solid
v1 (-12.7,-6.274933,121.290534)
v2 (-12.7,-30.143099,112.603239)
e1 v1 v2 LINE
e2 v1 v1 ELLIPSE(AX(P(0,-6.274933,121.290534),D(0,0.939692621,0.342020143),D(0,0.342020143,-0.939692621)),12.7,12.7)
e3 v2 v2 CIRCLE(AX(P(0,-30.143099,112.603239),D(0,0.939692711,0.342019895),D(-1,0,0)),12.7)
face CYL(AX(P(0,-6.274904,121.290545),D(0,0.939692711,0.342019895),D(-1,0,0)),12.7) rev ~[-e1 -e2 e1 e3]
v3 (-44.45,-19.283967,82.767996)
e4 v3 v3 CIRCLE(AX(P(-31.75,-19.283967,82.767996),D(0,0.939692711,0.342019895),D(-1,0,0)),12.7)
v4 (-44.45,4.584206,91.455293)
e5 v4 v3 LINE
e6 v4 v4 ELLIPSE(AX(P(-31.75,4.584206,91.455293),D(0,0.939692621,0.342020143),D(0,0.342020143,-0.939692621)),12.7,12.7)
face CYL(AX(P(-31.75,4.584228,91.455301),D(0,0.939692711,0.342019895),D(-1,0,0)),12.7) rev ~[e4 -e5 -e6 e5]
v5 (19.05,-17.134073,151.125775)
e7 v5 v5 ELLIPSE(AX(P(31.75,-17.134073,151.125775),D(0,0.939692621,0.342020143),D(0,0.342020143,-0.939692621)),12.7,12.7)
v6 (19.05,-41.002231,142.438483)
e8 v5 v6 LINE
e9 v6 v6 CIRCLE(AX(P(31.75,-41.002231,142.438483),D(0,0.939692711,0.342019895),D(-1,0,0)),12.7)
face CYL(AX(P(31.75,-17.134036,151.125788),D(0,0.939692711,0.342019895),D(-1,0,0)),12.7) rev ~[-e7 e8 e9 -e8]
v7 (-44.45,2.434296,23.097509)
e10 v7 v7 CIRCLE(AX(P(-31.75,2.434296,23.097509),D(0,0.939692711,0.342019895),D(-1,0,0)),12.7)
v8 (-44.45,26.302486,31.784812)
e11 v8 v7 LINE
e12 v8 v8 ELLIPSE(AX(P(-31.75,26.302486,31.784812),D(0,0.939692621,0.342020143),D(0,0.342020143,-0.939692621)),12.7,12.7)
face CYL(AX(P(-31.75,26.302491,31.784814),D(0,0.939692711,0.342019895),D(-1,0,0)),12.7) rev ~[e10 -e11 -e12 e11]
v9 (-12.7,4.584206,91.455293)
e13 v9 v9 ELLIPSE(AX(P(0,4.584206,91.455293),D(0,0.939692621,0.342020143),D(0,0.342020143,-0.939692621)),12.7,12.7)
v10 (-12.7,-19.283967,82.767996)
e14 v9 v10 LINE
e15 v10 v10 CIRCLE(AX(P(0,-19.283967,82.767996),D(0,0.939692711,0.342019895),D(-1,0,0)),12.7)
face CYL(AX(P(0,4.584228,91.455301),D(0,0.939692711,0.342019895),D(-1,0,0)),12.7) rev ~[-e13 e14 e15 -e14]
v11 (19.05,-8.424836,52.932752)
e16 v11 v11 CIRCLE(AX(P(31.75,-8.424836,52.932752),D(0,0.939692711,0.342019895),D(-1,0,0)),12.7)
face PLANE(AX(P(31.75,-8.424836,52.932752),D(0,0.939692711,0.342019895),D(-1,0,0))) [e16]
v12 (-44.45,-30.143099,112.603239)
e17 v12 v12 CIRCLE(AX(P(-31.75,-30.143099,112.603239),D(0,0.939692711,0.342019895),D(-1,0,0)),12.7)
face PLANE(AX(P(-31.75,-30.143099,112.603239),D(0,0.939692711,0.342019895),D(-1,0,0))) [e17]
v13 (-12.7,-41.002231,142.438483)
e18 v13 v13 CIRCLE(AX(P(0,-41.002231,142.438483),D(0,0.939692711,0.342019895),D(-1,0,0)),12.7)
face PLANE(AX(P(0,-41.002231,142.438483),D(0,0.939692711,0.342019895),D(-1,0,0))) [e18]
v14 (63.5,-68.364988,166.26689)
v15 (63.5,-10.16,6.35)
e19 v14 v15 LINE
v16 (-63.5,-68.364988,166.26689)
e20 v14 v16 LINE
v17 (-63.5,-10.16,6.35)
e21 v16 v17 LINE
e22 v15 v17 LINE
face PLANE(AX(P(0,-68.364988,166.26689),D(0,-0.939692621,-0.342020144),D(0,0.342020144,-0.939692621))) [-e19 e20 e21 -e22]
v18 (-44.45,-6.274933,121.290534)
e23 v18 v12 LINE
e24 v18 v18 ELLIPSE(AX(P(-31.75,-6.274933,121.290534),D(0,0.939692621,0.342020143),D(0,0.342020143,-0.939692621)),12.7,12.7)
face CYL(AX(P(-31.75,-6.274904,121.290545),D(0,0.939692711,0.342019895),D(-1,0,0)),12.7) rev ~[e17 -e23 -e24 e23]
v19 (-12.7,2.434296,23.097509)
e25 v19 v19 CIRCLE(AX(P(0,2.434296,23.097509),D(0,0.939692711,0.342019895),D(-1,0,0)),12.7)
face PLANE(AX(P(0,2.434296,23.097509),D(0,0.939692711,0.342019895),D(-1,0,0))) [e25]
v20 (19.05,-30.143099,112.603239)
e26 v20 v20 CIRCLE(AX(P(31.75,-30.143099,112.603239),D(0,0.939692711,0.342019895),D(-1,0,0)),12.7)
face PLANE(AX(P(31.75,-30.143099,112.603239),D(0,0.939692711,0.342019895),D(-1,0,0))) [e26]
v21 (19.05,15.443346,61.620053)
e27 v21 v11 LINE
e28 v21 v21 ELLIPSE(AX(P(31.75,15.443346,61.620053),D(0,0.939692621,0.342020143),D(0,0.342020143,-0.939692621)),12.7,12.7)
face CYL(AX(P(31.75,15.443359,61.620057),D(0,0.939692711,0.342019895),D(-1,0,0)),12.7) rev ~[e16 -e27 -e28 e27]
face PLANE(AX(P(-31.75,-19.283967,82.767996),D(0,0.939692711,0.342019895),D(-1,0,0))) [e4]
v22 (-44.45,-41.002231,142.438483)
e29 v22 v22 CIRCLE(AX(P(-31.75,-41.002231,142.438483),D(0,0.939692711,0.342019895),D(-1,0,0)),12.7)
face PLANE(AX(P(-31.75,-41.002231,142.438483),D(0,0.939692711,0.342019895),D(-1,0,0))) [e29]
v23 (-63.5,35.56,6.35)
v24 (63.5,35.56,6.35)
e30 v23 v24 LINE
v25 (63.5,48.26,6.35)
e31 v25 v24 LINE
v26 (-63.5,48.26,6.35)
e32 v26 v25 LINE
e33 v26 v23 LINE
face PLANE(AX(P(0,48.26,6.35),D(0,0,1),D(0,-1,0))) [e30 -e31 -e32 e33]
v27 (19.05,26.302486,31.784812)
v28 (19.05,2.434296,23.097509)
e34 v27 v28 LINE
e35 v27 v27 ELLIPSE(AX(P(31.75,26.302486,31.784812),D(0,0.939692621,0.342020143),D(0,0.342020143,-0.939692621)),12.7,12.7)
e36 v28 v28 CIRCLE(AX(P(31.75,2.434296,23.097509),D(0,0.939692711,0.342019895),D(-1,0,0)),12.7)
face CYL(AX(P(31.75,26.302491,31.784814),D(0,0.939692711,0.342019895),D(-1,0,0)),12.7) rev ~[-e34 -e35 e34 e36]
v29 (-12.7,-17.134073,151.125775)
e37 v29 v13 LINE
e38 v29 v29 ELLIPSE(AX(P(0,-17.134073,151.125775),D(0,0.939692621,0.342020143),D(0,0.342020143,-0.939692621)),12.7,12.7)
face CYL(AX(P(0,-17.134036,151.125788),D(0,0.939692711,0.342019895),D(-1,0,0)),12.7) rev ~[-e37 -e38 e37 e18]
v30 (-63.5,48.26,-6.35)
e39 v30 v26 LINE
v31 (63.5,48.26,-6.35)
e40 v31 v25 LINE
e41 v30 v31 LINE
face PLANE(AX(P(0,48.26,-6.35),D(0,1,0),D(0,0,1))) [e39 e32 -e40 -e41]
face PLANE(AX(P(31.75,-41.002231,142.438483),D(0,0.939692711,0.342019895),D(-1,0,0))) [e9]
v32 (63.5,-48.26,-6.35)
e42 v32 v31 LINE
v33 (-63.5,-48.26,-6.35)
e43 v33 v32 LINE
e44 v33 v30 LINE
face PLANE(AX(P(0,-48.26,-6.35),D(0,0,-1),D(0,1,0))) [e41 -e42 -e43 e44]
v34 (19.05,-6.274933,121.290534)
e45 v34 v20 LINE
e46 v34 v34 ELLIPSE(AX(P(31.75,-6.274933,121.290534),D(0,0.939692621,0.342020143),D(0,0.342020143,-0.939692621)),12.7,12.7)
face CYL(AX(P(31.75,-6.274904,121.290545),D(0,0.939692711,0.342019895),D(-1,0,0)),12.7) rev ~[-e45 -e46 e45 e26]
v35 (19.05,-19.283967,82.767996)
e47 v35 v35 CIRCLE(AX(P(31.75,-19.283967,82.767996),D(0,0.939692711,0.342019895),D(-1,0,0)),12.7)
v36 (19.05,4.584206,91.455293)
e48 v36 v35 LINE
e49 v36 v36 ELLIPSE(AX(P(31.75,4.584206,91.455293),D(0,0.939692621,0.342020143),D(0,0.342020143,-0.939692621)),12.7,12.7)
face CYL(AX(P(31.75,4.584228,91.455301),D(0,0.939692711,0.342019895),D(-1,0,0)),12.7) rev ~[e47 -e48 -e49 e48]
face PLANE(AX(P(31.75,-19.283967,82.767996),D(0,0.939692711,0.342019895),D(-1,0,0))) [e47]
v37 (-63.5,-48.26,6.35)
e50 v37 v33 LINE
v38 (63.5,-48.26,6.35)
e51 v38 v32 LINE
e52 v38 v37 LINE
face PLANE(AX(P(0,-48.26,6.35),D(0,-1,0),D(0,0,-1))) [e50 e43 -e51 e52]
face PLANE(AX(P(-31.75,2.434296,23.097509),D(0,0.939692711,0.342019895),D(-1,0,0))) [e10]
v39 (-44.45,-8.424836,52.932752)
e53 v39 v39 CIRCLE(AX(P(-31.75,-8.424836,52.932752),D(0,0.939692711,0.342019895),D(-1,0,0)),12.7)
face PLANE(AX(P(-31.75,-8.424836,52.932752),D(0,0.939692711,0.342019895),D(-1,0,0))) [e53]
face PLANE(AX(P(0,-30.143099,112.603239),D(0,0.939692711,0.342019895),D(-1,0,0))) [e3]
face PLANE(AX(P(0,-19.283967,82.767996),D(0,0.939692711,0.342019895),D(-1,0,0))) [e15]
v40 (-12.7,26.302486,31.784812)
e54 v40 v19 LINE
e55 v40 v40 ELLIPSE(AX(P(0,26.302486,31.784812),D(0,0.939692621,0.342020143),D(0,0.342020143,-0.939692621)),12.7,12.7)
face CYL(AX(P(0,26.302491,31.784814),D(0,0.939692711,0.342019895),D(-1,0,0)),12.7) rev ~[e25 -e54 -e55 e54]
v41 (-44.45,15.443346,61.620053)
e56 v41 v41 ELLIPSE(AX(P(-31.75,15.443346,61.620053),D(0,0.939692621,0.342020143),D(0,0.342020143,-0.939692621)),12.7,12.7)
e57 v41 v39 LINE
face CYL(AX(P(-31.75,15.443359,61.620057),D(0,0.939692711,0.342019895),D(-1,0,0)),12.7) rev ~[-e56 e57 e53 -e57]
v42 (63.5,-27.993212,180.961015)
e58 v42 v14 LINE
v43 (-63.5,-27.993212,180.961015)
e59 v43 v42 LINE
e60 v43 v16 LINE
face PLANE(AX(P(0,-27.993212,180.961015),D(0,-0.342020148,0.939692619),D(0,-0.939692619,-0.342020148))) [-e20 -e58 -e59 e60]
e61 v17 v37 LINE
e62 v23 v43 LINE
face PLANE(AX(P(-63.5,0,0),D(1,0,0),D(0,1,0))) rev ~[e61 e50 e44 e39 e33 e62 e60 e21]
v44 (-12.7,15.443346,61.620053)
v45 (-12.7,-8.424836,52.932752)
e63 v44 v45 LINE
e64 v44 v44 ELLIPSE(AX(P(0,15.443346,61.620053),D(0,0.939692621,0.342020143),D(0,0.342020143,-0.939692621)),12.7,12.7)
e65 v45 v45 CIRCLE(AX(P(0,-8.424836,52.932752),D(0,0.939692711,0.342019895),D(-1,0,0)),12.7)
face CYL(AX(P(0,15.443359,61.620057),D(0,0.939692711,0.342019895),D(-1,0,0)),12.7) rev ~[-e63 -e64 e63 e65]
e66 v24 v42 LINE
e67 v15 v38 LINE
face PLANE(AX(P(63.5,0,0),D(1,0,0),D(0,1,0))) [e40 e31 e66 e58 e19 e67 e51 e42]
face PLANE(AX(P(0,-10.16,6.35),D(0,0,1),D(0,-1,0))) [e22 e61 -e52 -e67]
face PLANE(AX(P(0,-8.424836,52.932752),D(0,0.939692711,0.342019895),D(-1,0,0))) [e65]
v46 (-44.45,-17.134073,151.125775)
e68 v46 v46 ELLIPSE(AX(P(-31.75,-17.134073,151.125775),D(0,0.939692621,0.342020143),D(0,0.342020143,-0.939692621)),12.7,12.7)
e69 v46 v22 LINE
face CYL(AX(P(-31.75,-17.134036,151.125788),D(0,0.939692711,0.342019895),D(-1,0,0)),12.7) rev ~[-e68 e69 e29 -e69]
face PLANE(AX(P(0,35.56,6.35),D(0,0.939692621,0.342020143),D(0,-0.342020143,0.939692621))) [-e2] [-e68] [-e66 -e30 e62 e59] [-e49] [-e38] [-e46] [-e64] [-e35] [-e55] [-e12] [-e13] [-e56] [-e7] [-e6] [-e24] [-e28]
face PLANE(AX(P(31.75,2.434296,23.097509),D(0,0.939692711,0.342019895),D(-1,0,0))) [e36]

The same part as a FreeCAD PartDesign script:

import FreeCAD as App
import Part
import Sketcher
from FreeCAD import Vector
Q = App.Units.Quantity

doc = App.newDocument("Part")
body = doc.addObject("PartDesign::Body", "Body")

sketch1 = body.newObject("Sketcher::SketchObject", "Sketch")
sketch1.AttachmentSupport = (doc.getObject("YZ_Plane"), [""])
sketch1.MapMode = "FlatFace"
sketch1.addGeometry([
    Part.LineSegment(Vector(-48, 6, 0), Vector(-48, -6, 0)),
    Part.LineSegment(Vector(-48, -6, 0), Vector(48, -6, 0)),
    Part.LineSegment(Vector(48, -6, 0), Vector(48, 6, 0)),
    Part.LineSegment(Vector(48, 6, 0), Vector(36, 6, 0)),
    Part.LineSegment(Vector(36, 6, 0), Vector(-28, 181, 0)),
    Part.LineSegment(Vector(-28, 181, 0), Vector(-68, 166, 0)),
    Part.LineSegment(Vector(-68, 166, 0), Vector(-10, 6, 0)),
    Part.LineSegment(Vector(-10, 6, 0), Vector(-48, 6, 0)),
], False)
sketch1.addConstraint([
    Sketcher.Constraint("Coincident", 0, 2, 1, 1),
    Sketcher.Constraint("Coincident", 1, 2, 2, 1),
    Sketcher.Constraint("Coincident", 2, 2, 3, 1),
    Sketcher.Constraint("Coincident", 3, 2, 4, 1),
    Sketcher.Constraint("Coincident", 4, 2, 5, 1),
    Sketcher.Constraint("Coincident", 5, 2, 6, 1),
    Sketcher.Constraint("Coincident", 6, 2, 7, 1),
    Sketcher.Constraint("Coincident", 7, 2, 0, 1),
    Sketcher.Constraint("Vertical", 0),
    Sketcher.Constraint("Horizontal", 1),
    Sketcher.Constraint("Vertical", 2),
    Sketcher.Constraint("Horizontal", 3),
    Sketcher.Constraint("Horizontal", 7),
    Sketcher.Constraint("Symmetric", 0, 2, 2, 2, -1, 1),
    Sketcher.Constraint("Perpendicular", 4, 5),
    Sketcher.Constraint("Perpendicular", 5, 6),
    Sketcher.Constraint("Horizontal", 3, 2, 6, 2),
    Sketcher.Constraint("Equal", 3, 0),
    Sketcher.Constraint("DistanceX", 1, 1, 1, 2, Q("3.8 in")),
    Sketcher.Constraint("DistanceX", 3, 2, 3, 1, Q("0.5 in")),
    Sketcher.Constraint("DistanceX", 7, 2, 7, 1, Q("1.5 in")),
    Sketcher.Constraint("Angle", 4, Q("110 deg")),
    Sketcher.Constraint("Distance", 6, Q("6.7 in")),
])
pad1 = body.newObject("PartDesign::Pad", "Pad")
pad1.Profile = sketch1
pad1.Type = "TwoLengths"
pad1.Length = Q("2.5 in")
pad1.Length2 = Q("2.5 in")

sketch2 = body.newObject("Sketcher::SketchObject", "Sketch001")
sketch2.Placement = App.Placement(Vector(0, 33.441121, 12.171573), App.Rotation(Vector(-1, 0, 0), Vector(0, -0.342019895, 0.939692711), Vector(0, 0.939692711, 0.342019895), "ZXY"))
sketch2.addGeometry([
    Part.Circle(Vector(-32, 148, 0), Vector(0, 0, 1), 13),
    Part.Circle(Vector(0, 148, 0), Vector(0, 0, 1), 13),
    Part.Circle(Vector(32, 148, 0), Vector(0, 0, 1), 13),
    Part.Circle(Vector(32, 116, 0), Vector(0, 0, 1), 13),
    Part.Circle(Vector(-32, 116, 0), Vector(0, 0, 1), 13),
    Part.Circle(Vector(0, 116, 0), Vector(0, 0, 1), 13),
    Part.Circle(Vector(32, 84, 0), Vector(0, 0, 1), 13),
    Part.Circle(Vector(0, 84, 0), Vector(0, 0, 1), 13),
    Part.Circle(Vector(-32, 84, 0), Vector(0, 0, 1), 13),
    Part.Circle(Vector(0, 53, 0), Vector(0, 0, 1), 13),
    Part.Circle(Vector(32, 53, 0), Vector(0, 0, 1), 13),
    Part.Circle(Vector(-32, 53, 0), Vector(0, 0, 1), 13),
    Part.Circle(Vector(-32, 21, 0), Vector(0, 0, 1), 13),
    Part.Circle(Vector(0, 21, 0), Vector(0, 0, 1), 13),
    Part.Circle(Vector(32, 21, 0), Vector(0, 0, 1), 13),
], False)
sketch2.addConstraint([
    Sketcher.Constraint("Equal", 0, 1),
    Sketcher.Constraint("Equal", 1, 2),
    Sketcher.Constraint("Equal", 2, 3),
    Sketcher.Constraint("Equal", 3, 4),
    Sketcher.Constraint("Equal", 4, 5),
    Sketcher.Constraint("Equal", 5, 6),
    Sketcher.Constraint("Equal", 6, 7),
    Sketcher.Constraint("Equal", 7, 8),
    Sketcher.Constraint("Equal", 8, 9),
    Sketcher.Constraint("Equal", 9, 10),
    Sketcher.Constraint("Equal", 10, 11),
    Sketcher.Constraint("Equal", 11, 12),
    Sketcher.Constraint("Equal", 12, 13),
    Sketcher.Constraint("Equal", 13, 14),
    Sketcher.Constraint("Symmetric", 0, 3, 2, 3, -2),
    Sketcher.Constraint("Symmetric", 3, 3, 4, 3, -2),
    Sketcher.Constraint("Symmetric", 6, 3, 8, 3, -2),
    Sketcher.Constraint("Symmetric", 10, 3, 11, 3, -2),
    Sketcher.Constraint("Symmetric", 12, 3, 14, 3, -2),
    Sketcher.Constraint("PointOnObject", 1, 3, -2),
    Sketcher.Constraint("PointOnObject", 5, 3, -2),
    Sketcher.Constraint("PointOnObject", 7, 3, -2),
    Sketcher.Constraint("PointOnObject", 9, 3, -2),
    Sketcher.Constraint("PointOnObject", 13, 3, -2),
    Sketcher.Constraint("Horizontal", 0, 3, 1, 3),
    Sketcher.Constraint("Horizontal", 4, 3, 5, 3),
    Sketcher.Constraint("Horizontal", 6, 3, 7, 3),
    Sketcher.Constraint("Horizontal", 9, 3, 10, 3),
    Sketcher.Constraint("Horizontal", 12, 3, 13, 3),
    Sketcher.Constraint("Vertical", 2, 3, 3, 3),
    Sketcher.Constraint("Vertical", 3, 3, 6, 3),
    Sketcher.Constraint("Vertical", 6, 3, 10, 3),
    Sketcher.Constraint("Vertical", 11, 3, 12, 3),
    Sketcher.Constraint("Diameter", 0, Q("1 in")),
    Sketcher.Constraint("DistanceX", 0, 3, 2, 3, Q("2.5 in")),
    Sketcher.Constraint("DistanceY", 6, 3, 2, 3, Q("2.5 in")),
    Sketcher.Constraint("DistanceY", 9, 3, 5, 3, Q("2.5 in")),
    Sketcher.Constraint("DistanceY", 12, 3, 8, 3, Q("2.5 in")),
    Sketcher.Constraint("DistanceY", 3, 3, 2, 3, Q("1.25 in")),
    Sketcher.Constraint("DistanceY", -1, 1, 0, 3, Q("147.871973 mm")),
])
pocket1 = body.newObject("PartDesign::Pocket", "Pocket")
pocket1.Profile = sketch2
pocket1.Length = Q("1 in")

doc.recompute()
